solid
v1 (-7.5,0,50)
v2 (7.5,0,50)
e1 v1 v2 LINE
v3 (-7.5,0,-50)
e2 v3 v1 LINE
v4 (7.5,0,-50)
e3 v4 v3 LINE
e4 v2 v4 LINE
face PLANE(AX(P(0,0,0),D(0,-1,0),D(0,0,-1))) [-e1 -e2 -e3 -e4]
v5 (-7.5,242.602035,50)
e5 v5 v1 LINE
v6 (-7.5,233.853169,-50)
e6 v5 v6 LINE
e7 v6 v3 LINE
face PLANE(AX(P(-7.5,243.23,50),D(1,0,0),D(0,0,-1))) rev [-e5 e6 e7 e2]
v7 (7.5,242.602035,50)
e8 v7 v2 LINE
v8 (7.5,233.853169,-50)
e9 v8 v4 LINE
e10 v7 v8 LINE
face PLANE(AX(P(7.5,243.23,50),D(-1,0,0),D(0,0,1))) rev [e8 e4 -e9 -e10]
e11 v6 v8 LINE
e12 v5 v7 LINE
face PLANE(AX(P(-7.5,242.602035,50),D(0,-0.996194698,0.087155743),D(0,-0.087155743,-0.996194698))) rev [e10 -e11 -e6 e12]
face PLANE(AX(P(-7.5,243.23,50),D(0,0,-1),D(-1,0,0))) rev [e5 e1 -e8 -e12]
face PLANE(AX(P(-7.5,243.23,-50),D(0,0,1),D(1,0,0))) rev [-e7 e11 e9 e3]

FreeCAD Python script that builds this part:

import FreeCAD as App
import Part
import Sketcher
Q = App.Units.Quantity


def add_polygon(sketch, points):
    """Adds a closed chain of lines whose ends are joined by coincident constraints."""
    first, n = sketch.GeometryCount, len(points)
    for a, b in zip(points, points[1:] + points[:1]):
        sketch.addGeometry(Part.LineSegment(App.Vector(*a, 0), App.Vector(*b, 0)), False)
    for i in range(n):
        sketch.addConstraint(Sketcher.Constraint("Coincident", first + i, 2, first + (i + 1) % n, 1))

doc = App.newDocument("Part")
body = doc.addObject("PartDesign::Body", "Body")

sketch1 = body.newObject("Sketcher::SketchObject", "Sketch")
sketch1.AttachmentSupport = (doc.getObject("XZ_Plane"), [""])
sketch1.MapMode = "FlatFace"
add_polygon(sketch1, [(-8, -50), (-8, 50), (8, 50), (8, -50)])
sketch1.addConstraint(Sketcher.Constraint("Vertical", 0))
sketch1.addConstraint(Sketcher.Constraint("Horizontal", 1))
sketch1.addConstraint(Sketcher.Constraint("Vertical", 2))
sketch1.addConstraint(Sketcher.Constraint("Horizontal", 3))
sketch1.addConstraint(Sketcher.Constraint("Symmetric", 0, 2, 2, 2, -1, 1))
sketch1.addConstraint(Sketcher.Constraint("DistanceX", 1, 1, 1, 2, Q("15 mm")))
sketch1.addConstraint(Sketcher.Constraint("DistanceY", 0, 1, 0, 2, Q("100 mm")))
pad1 = body.newObject("PartDesign::Pad", "Pad")
pad1.Profile = sketch1
pad1.Length = 243.23
pad1.Reversed = True

sketch2 = body.newObject("Sketcher::SketchObject", "Sketch001")
sketch2.AttachmentSupport = (doc.getObject("YZ_Plane"), [""])
sketch2.MapMode = "FlatFace"
sketch2.AttachmentOffset = App.Placement(App.Vector(0, 0, 7.5), App.Rotation())
add_polygon(sketch2, [(242.6, 50), (233.9, -50), (243.2, -50), (243.2, 50)])
sketch2.addConstraint(Sketcher.Constraint("Horizontal", 1))
sketch2.addConstraint(Sketcher.Constraint("Vertical", 2))
sketch2.addConstraint(Sketcher.Constraint("Horizontal", 3))
sketch2.addConstraint(Sketcher.Constraint("DistanceY", 2, 1, 2, 2, Q("100 mm")))
sketch2.addConstraint(Sketcher.Constraint("Angle", 0, Q("-95 deg")))
sketch2.addConstraint(Sketcher.Constraint("DistanceY", 0, 2, -1, 1, Q("50 mm")))
sketch2.addConstraint(Sketcher.Constraint("DistanceX", -1, 1, 1, 2, Q("243.23 mm")))
sketch2.addConstraint(Sketcher.Constraint("DistanceX", 1, 1, 1, 2, Q("9.376831 mm")))
pocket1 = body.newObject("PartDesign::Pocket", "Pocket")
pocket1.Profile = sketch2
pocket1.Type = "ThroughAll"

doc.recompute()
